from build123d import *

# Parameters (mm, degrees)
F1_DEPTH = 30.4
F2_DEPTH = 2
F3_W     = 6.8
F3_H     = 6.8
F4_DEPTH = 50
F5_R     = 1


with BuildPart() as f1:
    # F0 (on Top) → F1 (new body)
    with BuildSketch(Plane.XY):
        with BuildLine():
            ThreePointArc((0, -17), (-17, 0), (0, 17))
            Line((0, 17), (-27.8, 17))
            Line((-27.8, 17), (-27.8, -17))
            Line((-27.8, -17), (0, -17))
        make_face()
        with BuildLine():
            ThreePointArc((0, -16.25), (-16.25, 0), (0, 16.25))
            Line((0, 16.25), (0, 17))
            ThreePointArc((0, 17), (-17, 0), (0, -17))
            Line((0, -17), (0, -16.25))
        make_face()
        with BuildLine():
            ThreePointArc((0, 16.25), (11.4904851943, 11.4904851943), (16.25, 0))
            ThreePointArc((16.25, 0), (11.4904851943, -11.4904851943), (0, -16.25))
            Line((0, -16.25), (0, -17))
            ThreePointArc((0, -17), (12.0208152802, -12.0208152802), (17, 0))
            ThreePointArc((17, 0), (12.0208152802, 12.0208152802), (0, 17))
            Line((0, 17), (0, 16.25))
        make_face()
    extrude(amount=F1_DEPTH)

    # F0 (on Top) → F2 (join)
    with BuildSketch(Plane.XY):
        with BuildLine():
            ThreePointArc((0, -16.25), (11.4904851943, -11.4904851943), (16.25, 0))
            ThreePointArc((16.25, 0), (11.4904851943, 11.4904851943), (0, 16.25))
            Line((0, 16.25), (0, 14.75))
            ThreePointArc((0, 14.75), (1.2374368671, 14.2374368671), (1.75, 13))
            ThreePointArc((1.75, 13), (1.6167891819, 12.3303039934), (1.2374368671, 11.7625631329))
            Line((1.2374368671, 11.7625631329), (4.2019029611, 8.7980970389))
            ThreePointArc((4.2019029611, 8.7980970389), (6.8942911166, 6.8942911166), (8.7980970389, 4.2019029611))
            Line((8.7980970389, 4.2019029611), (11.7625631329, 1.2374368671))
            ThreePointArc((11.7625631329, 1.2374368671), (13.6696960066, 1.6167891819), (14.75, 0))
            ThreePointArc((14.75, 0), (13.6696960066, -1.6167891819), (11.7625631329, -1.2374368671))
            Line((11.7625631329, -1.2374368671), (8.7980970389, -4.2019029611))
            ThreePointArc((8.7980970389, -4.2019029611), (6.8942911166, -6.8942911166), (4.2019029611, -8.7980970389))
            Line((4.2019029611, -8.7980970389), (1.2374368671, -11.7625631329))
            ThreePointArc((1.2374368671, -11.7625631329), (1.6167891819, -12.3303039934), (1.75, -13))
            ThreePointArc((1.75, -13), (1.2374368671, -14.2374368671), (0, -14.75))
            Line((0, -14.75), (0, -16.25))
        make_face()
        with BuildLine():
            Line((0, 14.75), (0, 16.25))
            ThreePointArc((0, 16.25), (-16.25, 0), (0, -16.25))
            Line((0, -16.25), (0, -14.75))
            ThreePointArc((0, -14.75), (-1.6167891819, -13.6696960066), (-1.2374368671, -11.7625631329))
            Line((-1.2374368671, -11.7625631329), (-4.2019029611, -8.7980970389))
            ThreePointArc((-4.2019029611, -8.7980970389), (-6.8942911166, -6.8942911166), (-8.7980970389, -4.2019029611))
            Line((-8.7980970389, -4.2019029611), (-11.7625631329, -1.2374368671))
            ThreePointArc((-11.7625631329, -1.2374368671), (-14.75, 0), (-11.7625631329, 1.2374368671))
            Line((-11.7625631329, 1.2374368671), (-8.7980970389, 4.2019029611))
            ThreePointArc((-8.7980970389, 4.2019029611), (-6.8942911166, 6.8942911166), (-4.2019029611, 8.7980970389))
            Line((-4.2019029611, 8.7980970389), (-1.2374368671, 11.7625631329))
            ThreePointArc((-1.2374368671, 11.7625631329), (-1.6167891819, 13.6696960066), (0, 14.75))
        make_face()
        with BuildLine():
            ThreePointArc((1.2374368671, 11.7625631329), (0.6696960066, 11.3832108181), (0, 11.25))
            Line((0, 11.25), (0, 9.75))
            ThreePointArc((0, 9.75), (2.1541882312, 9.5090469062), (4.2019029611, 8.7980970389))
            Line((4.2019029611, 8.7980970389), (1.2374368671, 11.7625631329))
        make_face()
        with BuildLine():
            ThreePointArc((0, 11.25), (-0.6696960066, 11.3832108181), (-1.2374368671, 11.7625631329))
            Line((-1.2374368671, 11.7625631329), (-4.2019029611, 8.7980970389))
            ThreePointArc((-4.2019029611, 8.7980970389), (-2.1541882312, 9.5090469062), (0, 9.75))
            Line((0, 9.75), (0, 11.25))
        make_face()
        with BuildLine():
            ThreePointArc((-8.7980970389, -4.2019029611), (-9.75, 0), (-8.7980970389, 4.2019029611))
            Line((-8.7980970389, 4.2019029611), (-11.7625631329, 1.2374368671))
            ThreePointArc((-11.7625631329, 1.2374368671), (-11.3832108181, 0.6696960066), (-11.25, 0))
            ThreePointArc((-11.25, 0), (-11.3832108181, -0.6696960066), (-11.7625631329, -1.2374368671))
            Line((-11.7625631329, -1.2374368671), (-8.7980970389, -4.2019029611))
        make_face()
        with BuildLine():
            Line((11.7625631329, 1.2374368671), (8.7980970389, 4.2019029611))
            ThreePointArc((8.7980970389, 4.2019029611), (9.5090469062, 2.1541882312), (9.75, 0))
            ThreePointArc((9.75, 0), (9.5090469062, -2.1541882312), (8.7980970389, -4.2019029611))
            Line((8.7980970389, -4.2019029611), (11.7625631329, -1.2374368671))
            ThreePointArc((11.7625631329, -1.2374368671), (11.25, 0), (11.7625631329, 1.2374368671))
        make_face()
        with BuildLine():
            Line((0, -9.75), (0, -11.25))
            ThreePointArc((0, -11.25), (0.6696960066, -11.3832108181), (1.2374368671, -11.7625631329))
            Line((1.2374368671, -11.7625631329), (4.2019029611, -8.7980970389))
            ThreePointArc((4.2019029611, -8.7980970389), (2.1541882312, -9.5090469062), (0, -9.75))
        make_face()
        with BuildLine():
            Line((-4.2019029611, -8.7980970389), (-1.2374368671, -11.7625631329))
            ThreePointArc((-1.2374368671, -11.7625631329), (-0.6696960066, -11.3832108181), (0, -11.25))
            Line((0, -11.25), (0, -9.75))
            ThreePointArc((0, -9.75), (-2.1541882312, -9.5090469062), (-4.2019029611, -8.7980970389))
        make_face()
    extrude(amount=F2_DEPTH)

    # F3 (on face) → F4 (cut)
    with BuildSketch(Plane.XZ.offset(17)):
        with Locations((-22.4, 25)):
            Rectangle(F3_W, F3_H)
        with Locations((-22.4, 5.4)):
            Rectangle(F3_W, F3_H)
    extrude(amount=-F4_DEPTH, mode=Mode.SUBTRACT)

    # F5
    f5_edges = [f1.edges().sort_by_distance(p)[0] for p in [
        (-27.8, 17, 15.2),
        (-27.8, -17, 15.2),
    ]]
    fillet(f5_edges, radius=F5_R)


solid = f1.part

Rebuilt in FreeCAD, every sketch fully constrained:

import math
import FreeCAD as App
import Part
import Sketcher
Q = App.Units.Quantity


def edges_at(feature, points):
    """Names of the edges that pass closest to the given points."""
    edges = feature.Shape.Edges
    near = lambda p: min(range(len(edges)), key=lambda i: edges[i].distToShape(Part.Vertex(*p))[0])
    return sorted({f"Edge{near(p) + 1}" for p in points})


def add_polygon(sketch, points):
    """Adds a closed chain of lines whose ends are joined by coincident constraints."""
    first, n = sketch.GeometryCount, len(points)
    for a, b in zip(points, points[1:] + points[:1]):
        sketch.addGeometry(Part.LineSegment(App.Vector(*a, 0), App.Vector(*b, 0)), False)
    for i in range(n):
        sketch.addConstraint(Sketcher.Constraint("Coincident", first + i, 2, first + (i + 1) % n, 1))

doc = App.newDocument("Part")
body = doc.addObject("PartDesign::Body", "Body")

# Sketch on XY plane
sketch1 = body.newObject("Sketcher::SketchObject", "Sketch")
sketch1.AttachmentSupport = (doc.getObject("XY_Plane"), [""])
sketch1.MapMode = "FlatFace"
sketch1.addGeometry(Part.LineSegment(App.Vector(0, 17, 0), App.Vector(-27.8, 17, 0)), False)
sketch1.addGeometry(Part.LineSegment(App.Vector(-27.8, 17, 0), App.Vector(-27.8, -17, 0)), False)
sketch1.addGeometry(Part.LineSegment(App.Vector(-27.8, -17, 0), App.Vector(0, -17, 0)), False)
sketch1.addGeometry(Part.ArcOfCircle(Part.Circle(App.Vector(0, 0, 0), App.Vector(0, 0, 1), 17), math.radians(-90), math.radians(0)), False)
sketch1.addGeometry(Part.ArcOfCircle(Part.Circle(App.Vector(0, 0, 0), App.Vector(0, 0, 1), 17), math.radians(0), math.radians(90)), False)
sketch1.addGeometry(Part.ArcOfCircle(Part.Circle(App.Vector(0, 0, 0), App.Vector(0, 0, 1), 16.25), math.radians(90), math.radians(270)), False)
sketch1.addGeometry(Part.ArcOfCircle(Part.Circle(App.Vector(0, 0, 0), App.Vector(0, 0, 1), 16.25), math.radians(0), math.radians(90)), False)
sketch1.addGeometry(Part.ArcOfCircle(Part.Circle(App.Vector(0, 0, 0), App.Vector(0, 0, 1), 16.25), math.radians(-90), math.radians(0)), False)
sketch1.addConstraint(Sketcher.Constraint("Coincident", 0, 2, 1, 1))
sketch1.addConstraint(Sketcher.Constraint("Coincident", 1, 2, 2, 1))
sketch1.addConstraint(Sketcher.Constraint("Tangent", 2, 2, 3, 1))
sketch1.addConstraint(Sketcher.Constraint("Tangent", 3, 2, 4, 1))
sketch1.addConstraint(Sketcher.Constraint("Tangent", 4, 2, 0, 1))
sketch1.addConstraint(Sketcher.Constraint("Tangent", 5, 1, 6, 2))
sketch1.addConstraint(Sketcher.Constraint("Tangent", 6, 1, 7, 2))
sketch1.addConstraint(Sketcher.Constraint("Tangent", 7, 1, 5, 2))
sketch1.addConstraint(Sketcher.Constraint("Horizontal", 0))
sketch1.addConstraint(Sketcher.Constraint("Vertical", 1))
sketch1.addConstraint(Sketcher.Constraint("Horizontal", 2))
sketch1.addConstraint(Sketcher.Constraint("Coincident", 3, 3, -1, 1))
sketch1.addConstraint(Sketcher.Constraint("Coincident", 5, 3, -1, 1))
sketch1.addConstraint(Sketcher.Constraint("Equal", 3, 4))
sketch1.addConstraint(Sketcher.Constraint("PointOnObject", 3, 2, -1))
sketch1.addConstraint(Sketcher.Constraint("PointOnObject", 5, 1, -2))
sketch1.addConstraint(Sketcher.Constraint("PointOnObject", 6, 1, -1))
sketch1.addConstraint(Sketcher.Constraint("PointOnObject", 7, 1, -2))
sketch1.addConstraint(Sketcher.Constraint("Radius", 3, Q("17 mm")))
sketch1.addConstraint(Sketcher.Constraint("Radius", 5, Q("16.25 mm")))
sketch1.addConstraint(Sketcher.Constraint("DistanceX", 0, 2, 0, 1, Q("27.8 mm")))
pad1 = body.newObject("PartDesign::Pad", "Pad")
pad1.Profile = sketch1
pad1.Length = 30.4

# Sketch on XY plane
sketch2 = body.newObject("Sketcher::SketchObject", "Sketch001")
sketch2.AttachmentSupport = (doc.getObject("XY_Plane"), [""])
sketch2.MapMode = "FlatFace"
sketch2.addGeometry(Part.ArcOfCircle(Part.Circle(App.Vector(0, 0, 0), App.Vector(0, 0, 1), 16.25), math.radians(-90), math.radians(0)), False)
sketch2.addGeometry(Part.ArcOfCircle(Part.Circle(App.Vector(0, 0, 0), App.Vector(0, 0, 1), 16.25), math.radians(0), math.radians(90)), False)
sketch2.addGeometry(Part.ArcOfCircle(Part.Circle(App.Vector(0, 0, 0), App.Vector(0, 0, 1), 16.25), math.radians(90), math.radians(270)), False)
sketch2.addGeometry(Part.ArcOfCircle(Part.Circle(App.Vector(0, 13, 0), App.Vector(0, 0, 1), 1.75), math.radians(0), math.radians(90)), False)
sketch2.addGeometry(Part.ArcOfCircle(Part.Circle(App.Vector(0, 13, 0), App.Vector(0, 0, 1), 1.75), math.radians(-45), math.radians(0)), False)
sketch2.addGeometry(Part.ArcOfCircle(Part.Circle(App.Vector(0, 13, 0), App.Vector(0, 0, 1), 1.75), math.radians(-90), math.radians(-45)), False)
sketch2.addGeometry(Part.ArcOfCircle(Part.Circle(App.Vector(0, 13, 0), App.Vector(0, 0, 1), 1.75), math.radians(-135), math.radians(-90)), False)
sketch2.addGeometry(Part.ArcOfCircle(Part.Circle(App.Vector(0, 13, 0), App.Vector(0, 0, 1), 1.75), math.radians(90), math.radians(225)), False)
sketch2.addGeometry(Part.ArcOfCircle(Part.Circle(App.Vector(0, 0, 0), App.Vector(0, 0, 1), 9.75), math.radians(64.471221), math.radians(90)), False)
sketch2.addGeometry(Part.ArcOfCircle(Part.Circle(App.Vector(0, 0, 0), App.Vector(0, 0, 1), 9.75), math.radians(25.528779), math.radians(64.471221)), False)
sketch2.addGeometry(Part.ArcOfCircle(Part.Circle(App.Vector(0, 0, 0), App.Vector(0, 0, 1), 9.75), math.radians(0), math.radians(25.528779)), False)
sketch2.addGeometry(Part.ArcOfCircle(Part.Circle(App.Vector(0, 0, 0), App.Vector(0, 0, 1), 9.75), math.radians(-25.528779), math.radians(0)), False)
sketch2.addGeometry(Part.ArcOfCircle(Part.Circle(App.Vector(0, 0, 0), App.Vector(0, 0, 1), 9.75), math.radians(-64.471221), math.radians(-25.528779)), False)
sketch2.addGeometry(Part.ArcOfCircle(Part.Circle(App.Vector(0, 0, 0), App.Vector(0, 0, 1), 9.75), math.radians(-90), math.radians(-64.471221)), False)
sketch2.addGeometry(Part.ArcOfCircle(Part.Circle(App.Vector(0, 0, 0), App.Vector(0, 0, 1), 9.75), math.radians(-115.528779), math.radians(-90)), False)
sketch2.addGeometry(Part.ArcOfCircle(Part.Circle(App.Vector(0, 0, 0), App.Vector(0, 0, 1), 9.75), math.radians(-154.471221), math.radians(-115.528779)), False)
sketch2.addGeometry(Part.ArcOfCircle(Part.Circle(App.Vector(0, 0, 0), App.Vector(0, 0, 1), 9.75), math.radians(154.471221), math.radians(205.528779)), False)
sketch2.addGeometry(Part.ArcOfCircle(Part.Circle(App.Vector(0, 0, 0), App.Vector(0, 0, 1), 9.75), math.radians(115.528779), math.radians(154.471221)), False)
sketch2.addGeometry(Part.ArcOfCircle(Part.Circle(App.Vector(0, 0, 0), App.Vector(0, 0, 1), 9.75), math.radians(90), math.radians(115.528779)), False)
sketch2.addGeometry(Part.ArcOfCircle(Part.Circle(App.Vector(0, -13, 0), App.Vector(0, 0, 1), 1.75), math.radians(45), math.radians(90)), False)
sketch2.addGeometry(Part.ArcOfCircle(Part.Circle(App.Vector(0, -13, 0), App.Vector(0, 0, 1), 1.75), math.radians(0), math.radians(45)), False)
sketch2.addGeometry(Part.ArcOfCircle(Part.Circle(App.Vector(0, -13, 0), App.Vector(0, 0, 1), 1.75), math.radians(-90), math.radians(0)), False)
sketch2.addGeometry(Part.ArcOfCircle(Part.Circle(App.Vector(0, -13, 0), App.Vector(0, 0, 1), 1.75), math.radians(135), math.radians(270)), False)
sketch2.addGeometry(Part.ArcOfCircle(Part.Circle(App.Vector(0, -13, 0), App.Vector(0, 0, 1), 1.75), math.radians(90), math.radians(135)), False)
sketch2.addGeometry(Part.ArcOfCircle(Part.Circle(App.Vector(13, 0, 0), App.Vector(0, 0, 1), 1.75), math.radians(0), math.radians(135)), False)
sketch2.addGeometry(Part.ArcOfCircle(Part.Circle(App.Vector(13, 0, 0), App.Vector(0, 0, 1), 1.75), math.radians(-135), math.radians(0)), False)
sketch2.addGeometry(Part.ArcOfCircle(Part.Circle(App.Vector(13, 0, 0), App.Vector(0, 0, 1), 1.75), math.radians(135), math.radians(225)), False)
sketch2.addGeometry(Part.ArcOfCircle(Part.Circle(App.Vector(-13, 0, 0), App.Vector(0, 0, 1), 1.75), math.radians(45), math.radians(315)), False)
sketch2.addGeometry(Part.ArcOfCircle(Part.Circle(App.Vector(-13, 0, 0), App.Vector(0, 0, 1), 1.75), math.radians(0), math.radians(45)), False)
sketch2.addGeometry(Part.ArcOfCircle(Part.Circle(App.Vector(-13, 0, 0), App.Vector(0, 0, 1), 1.75), math.radians(-45), math.radians(0)), False)
sketch2.addConstraint(Sketcher.Constraint("Tangent", 0, 2, 1, 1))
sketch2.addConstraint(Sketcher.Constraint("Tangent", 1, 2, 2, 1))
sketch2.addConstraint(Sketcher.Constraint("Tangent", 2, 2, 0, 1))
sketch2.addConstraint(Sketcher.Constraint("Tangent", 3, 1, 4, 2))
sketch2.addConstraint(Sketcher.Constraint("Tangent", 4, 1, 5, 2))
sketch2.addConstraint(Sketcher.Constraint("Tangent", 5, 1, 6, 2))
sketch2.addConstraint(Sketcher.Constraint("Tangent", 6, 1, 7, 2))
sketch2.addConstraint(Sketcher.Constraint("Tangent", 7, 1, 3, 2))
sketch2.addConstraint(Sketcher.Constraint("Tangent", 8, 1, 9, 2))
sketch2.addConstraint(Sketcher.Constraint("Tangent", 9, 1, 10, 2))
sketch2.addConstraint(Sketcher.Constraint("Tangent", 10, 1, 11, 2))
sketch2.addConstraint(Sketcher.Constraint("Tangent", 11, 1, 12, 2))
sketch2.addConstraint(Sketcher.Constraint("Tangent", 12, 1, 13, 2))
sketch2.addConstraint(Sketcher.Constraint("Tangent", 13, 1, 14, 2))
sketch2.addConstraint(Sketcher.Constraint("Tangent", 14, 1, 15, 2))
sketch2.addConstraint(Sketcher.Constraint("Tangent", 15, 1, 16, 2))
sketch2.addConstraint(Sketcher.Constraint("Tangent", 16, 1, 17, 2))
sketch2.addConstraint(Sketcher.Constraint("Tangent", 17, 1, 18, 2))
sketch2.addConstraint(Sketcher.Constraint("Tangent", 18, 1, 8, 2))
sketch2.addConstraint(Sketcher.Constraint("Tangent", 19, 1, 20, 2))
sketch2.addConstraint(Sketcher.Constraint("Tangent", 20, 1, 21, 2))
sketch2.addConstraint(Sketcher.Constraint("Tangent", 21, 1, 22, 2))
sketch2.addConstraint(Sketcher.Constraint("Tangent", 22, 1, 23, 2))
sketch2.addConstraint(Sketcher.Constraint("Tangent", 23, 1, 19, 2))
sketch2.addConstraint(Sketcher.Constraint("Tangent", 24, 1, 25, 2))
sketch2.addConstraint(Sketcher.Constraint("Tangent", 25, 1, 26, 2))
sketch2.addConstraint(Sketcher.Constraint("Tangent", 26, 1, 24, 2))
sketch2.addConstraint(Sketcher.Constraint("Tangent", 27, 1, 28, 2))
sketch2.addConstraint(Sketcher.Constraint("Tangent", 28, 1, 29, 2))
sketch2.addConstraint(Sketcher.Constraint("Tangent", 29, 1, 27, 2))
sketch2.addConstraint(Sketcher.Constraint("Coincident", 0, 3, -1, 1))
sketch2.addConstraint(Sketcher.Constraint("Coincident", 8, 3, -1, 1))
sketch2.addConstraint(Sketcher.Constraint("Coincident", 10, 3, -1, 1))
sketch2.addConstraint(Sketcher.Constraint("Coincident", 12, 3, -1, 1))
sketch2.addConstraint(Sketcher.Constraint("Coincident", 14, 3, -1, 1))
sketch2.addConstraint(Sketcher.Constraint("Coincident", 16, 3, -1, 1))
sketch2.addConstraint(Sketcher.Constraint("Coincident", 5, 3, 3, 3))
sketch2.addConstraint(Sketcher.Constraint("Coincident", 21, 3, 19, 3))
sketch2.addConstraint(Sketcher.Constraint("Equal", 7, 19))
sketch2.addConstraint(Sketcher.Constraint("Equal", 23, 24))
sketch2.addConstraint(Sketcher.Constraint("Equal", 26, 27))
sketch2.addConstraint(Sketcher.Constraint("Symmetric", 3, 3, 19, 3, -1, 1))
sketch2.addConstraint(Sketcher.Constraint("Symmetric", 24, 3, 27, 3, -1, 1))
sketch2.addConstraint(Sketcher.Constraint("Symmetric", 4, 1, 6, 1, -2))
sketch2.addConstraint(Sketcher.Constraint("Symmetric", 26, 1, 27, 1, -2))
sketch2.addConstraint(Sketcher.Constraint("PointOnObject", 0, 2, -1))
sketch2.addConstraint(Sketcher.Constraint("PointOnObject", 1, 2, -2))
sketch2.addConstraint(Sketcher.Constraint("PointOnObject", 2, 2, -2))
sketch2.addConstraint(Sketcher.Constraint("PointOnObject", 5, 1, -2))
sketch2.addConstraint(Sketcher.Constraint("PointOnObject", 7, 1, -2))
sketch2.addConstraint(Sketcher.Constraint("PointOnObject", 10, 1, -1))
sketch2.addConstraint(Sketcher.Constraint("PointOnObject", 13, 1, -2))
sketch2.addConstraint(Sketcher.Constraint("PointOnObject", 18, 1, -2))
sketch2.addConstraint(Sketcher.Constraint("PointOnObject", 21, 1, -2))
sketch2.addConstraint(Sketcher.Constraint("PointOnObject", 23, 1, -2))
sketch2.addConstraint(Sketcher.Constraint("PointOnObject", 24, 1, -1))
sketch2.addConstraint(Sketcher.Constraint("PointOnObject", 28, 1, -1))
sketch2.addConstraint(Sketcher.Constraint("Horizontal", 7, 3, 3, 1))
sketch2.addConstraint(Sketcher.Constraint("Horizontal", 12, 1, 14, 1))
sketch2.addConstraint(Sketcher.Constraint("Horizontal", 11, 1, 15, 1))
sketch2.addConstraint(Sketcher.Constraint("Horizontal", 9, 1, 16, 1))
sketch2.addConstraint(Sketcher.Constraint("Horizontal", 8, 1, 17, 1))
sketch2.addConstraint(Sketcher.Constraint("Horizontal", 23, 3, 20, 1))
sketch2.addConstraint(Sketcher.Constraint("Horizontal", 19, 1, 22, 1))
sketch2.addConstraint(Sketcher.Constraint("Horizontal", 25, 1, 29, 1))
sketch2.addConstraint(Sketcher.Constraint("Vertical", 9, 1, 11, 1))
sketch2.addConstraint(Sketcher.Constraint("Vertical", 8, 1, 12, 1))
sketch2.addConstraint(Sketcher.Constraint("Vertical", 4, 1, 19, 1))
sketch2.addConstraint(Sketcher.Constraint("Vertical", 25, 1, 26, 1))
sketch2.addConstraint(Sketcher.Constraint("Radius", 0, Q("16.25 mm")))
sketch2.addConstraint(Sketcher.Constraint("Radius", 3, Q("1.75 mm")))
sketch2.addConstraint(Sketcher.Constraint("Radius", 8, Q("9.75 mm")))
sketch2.addConstraint(Sketcher.Constraint("DistanceY", -1, 1, 3, 3, Q("13 mm")))
sketch2.addConstraint(Sketcher.Constraint("DistanceX", -1, 1, 24, 3, Q("13 mm")))
sketch2.addConstraint(Sketcher.Constraint("DistanceY", 15, 1, 27, 1, Q("5.43934 mm")))
sketch2.addConstraint(Sketcher.Constraint("DistanceX", -1, 1, 4, 1, Q("1.237437 mm")))
sketch2.addConstraint(Sketcher.Constraint("DistanceX", -1, 1, 8, 1, Q("4.201903 mm")))
sketch2.addConstraint(Sketcher.Constraint("DistanceX", -1, 1, 9, 1, Q("8.798097 mm")))
pad2 = body.newObject("PartDesign::Pad", "Pad001")
pad2.Profile = sketch2
pad2.Length = 2

# Sketch on XZ plane
sketch3 = body.newObject("Sketcher::SketchObject", "Sketch002")
sketch3.AttachmentSupport = (doc.getObject("XZ_Plane"), [""])
sketch3.MapMode = "FlatFace"
sketch3.AttachmentOffset = App.Placement(App.Vector(0, 0, 17), App.Rotation())
add_polygon(sketch3, [(-25.8, 28.4), (-25.8, 21.6), (-19, 21.6), (-19, 28.4)])  # lines 0-3
add_polygon(sketch3, [(-25.8, 8.8), (-25.8, 2), (-19, 2), (-19, 8.8)])  # lines 4-7
sketch3.addConstraint(Sketcher.Constraint("Vertical", 0))
sketch3.addConstraint(Sketcher.Constraint("Horizontal", 1))
sketch3.addConstraint(Sketcher.Constraint("Vertical", 2))
sketch3.addConstraint(Sketcher.Constraint("Horizontal", 3))
sketch3.addConstraint(Sketcher.Constraint("Vertical", 4))
sketch3.addConstraint(Sketcher.Constraint("Horizontal", 5))
sketch3.addConstraint(Sketcher.Constraint("Vertical", 6))
sketch3.addConstraint(Sketcher.Constraint("Horizontal", 7))
sketch3.addConstraint(Sketcher.Constraint("Vertical", 3, 2, 4, 2))
sketch3.addConstraint(Sketcher.Constraint("Vertical", 2, 2, 5, 2))
sketch3.addConstraint(Sketcher.Constraint("Equal", 7, 0))
sketch3.addConstraint(Sketcher.Constraint("Equal", 2, 4))
sketch3.addConstraint(Sketcher.Constraint("DistanceX", 1, 1, 1, 2, Q("6.8 mm")))
sketch3.addConstraint(Sketcher.Constraint("DistanceX", 1, 2, -1, 1, Q("19 mm")))
sketch3.addConstraint(Sketcher.Constraint("DistanceY", -1, 1, 4, 2, Q("2 mm")))
sketch3.addConstraint(Sketcher.Constraint("DistanceY", -1, 1, 0, 2, Q("21.6 mm")))
pocket1 = body.newObject("PartDesign::Pocket", "Pocket")
pocket1.Profile = sketch3
pocket1.Length = 50
doc.recompute()

fillet = body.newObject("PartDesign::Fillet", "Fillet")
fillet.Base = (pocket1, edges_at(pocket1, [(-27.8, 17, 15.2), (-27.8, -17, 15.2)]))
fillet.Radius = 1

doc.recompute()
